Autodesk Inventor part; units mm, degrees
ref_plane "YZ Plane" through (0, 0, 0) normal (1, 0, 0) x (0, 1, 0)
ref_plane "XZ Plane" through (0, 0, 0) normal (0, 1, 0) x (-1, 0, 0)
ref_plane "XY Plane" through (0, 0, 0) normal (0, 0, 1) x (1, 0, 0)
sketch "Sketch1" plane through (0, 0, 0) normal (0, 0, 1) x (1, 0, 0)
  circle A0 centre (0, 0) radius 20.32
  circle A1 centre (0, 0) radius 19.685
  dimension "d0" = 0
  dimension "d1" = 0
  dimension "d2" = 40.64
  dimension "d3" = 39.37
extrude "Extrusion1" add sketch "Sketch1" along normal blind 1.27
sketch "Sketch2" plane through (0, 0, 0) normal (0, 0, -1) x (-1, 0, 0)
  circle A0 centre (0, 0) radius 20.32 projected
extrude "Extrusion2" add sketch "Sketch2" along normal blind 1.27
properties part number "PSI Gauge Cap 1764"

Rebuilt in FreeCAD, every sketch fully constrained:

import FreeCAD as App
import Part
import Sketcher

V = App.Vector
Q = App.Units.Quantity

doc = App.newDocument("Part")
params = doc.addObject("Spreadsheet::Sheet", "Params")
for row, (alias, value) in enumerate([
    ("sketch1_diameter", "1.6 in"),
    ("sketch1_diameter2", "1.55 in"),
    ("pad1_length", "0.05 in"),
    ("sketch2_diameter", "1.6 in"),
    ("pad2_length", "0.05 in"),
], start=1):
    params.set(f"A{row}", alias)
    params.set(f"B{row}", "=" + value)
    params.setAlias(f"B{row}", alias)

body = doc.addObject("PartDesign::Body", "Body")

sketch1 = doc.addObject("Sketcher::SketchObject", "Sketch")
body.addObject(sketch1)
sketch1.AttachmentSupport = (doc.XY_Plane, [""])
sketch1.MapMode = "FlatFace"
sketch1.addGeometry([
    Part.Circle(V(0, 0, 0), V(0, 0, 1), 20),
    Part.Circle(V(0, 0, 0), V(0, 0, 1), 20),
], False)
sketch1.addConstraint([
    Sketcher.Constraint("Coincident", 0, 3, -1, 1),
    Sketcher.Constraint("Coincident", 1, 3, -1, 1),
    Sketcher.Constraint("Diameter", 0, Q("1.6 in")),
    Sketcher.Constraint("Diameter", 1, Q("1.55 in")),
])
sketch1.setExpression("Constraints[2]", "Params.sketch1_diameter")
sketch1.setExpression("Constraints[3]", "Params.sketch1_diameter2")
pad1 = doc.addObject("PartDesign::Pad", "Pad")
body.addObject(pad1)
pad1.Profile = sketch1
pad1.setExpression("Length", "Params.pad1_length")

sketch2 = doc.addObject("Sketcher::SketchObject", "Sketch001")
body.addObject(sketch2)
sketch2.AttachmentSupport = (doc.XY_Plane, [""])
sketch2.MapMode = "FlatFace"
sketch2.addGeometry(Part.Circle(V(0, 0, 0), V(0, 0, 1), 20), False)
sketch2.addConstraint([
    Sketcher.Constraint("Coincident", 0, 3, -1, 1),
    Sketcher.Constraint("Diameter", 0, Q("1.6 in")),
])
sketch2.setExpression("Constraints[1]", "Params.sketch2_diameter")
pad2 = doc.addObject("PartDesign::Pad", "Pad001")
body.addObject(pad2)
pad2.Profile = sketch2
pad2.setExpression("Length", "Params.pad2_length")
pad2.Reversed = True

doc.recompute()
